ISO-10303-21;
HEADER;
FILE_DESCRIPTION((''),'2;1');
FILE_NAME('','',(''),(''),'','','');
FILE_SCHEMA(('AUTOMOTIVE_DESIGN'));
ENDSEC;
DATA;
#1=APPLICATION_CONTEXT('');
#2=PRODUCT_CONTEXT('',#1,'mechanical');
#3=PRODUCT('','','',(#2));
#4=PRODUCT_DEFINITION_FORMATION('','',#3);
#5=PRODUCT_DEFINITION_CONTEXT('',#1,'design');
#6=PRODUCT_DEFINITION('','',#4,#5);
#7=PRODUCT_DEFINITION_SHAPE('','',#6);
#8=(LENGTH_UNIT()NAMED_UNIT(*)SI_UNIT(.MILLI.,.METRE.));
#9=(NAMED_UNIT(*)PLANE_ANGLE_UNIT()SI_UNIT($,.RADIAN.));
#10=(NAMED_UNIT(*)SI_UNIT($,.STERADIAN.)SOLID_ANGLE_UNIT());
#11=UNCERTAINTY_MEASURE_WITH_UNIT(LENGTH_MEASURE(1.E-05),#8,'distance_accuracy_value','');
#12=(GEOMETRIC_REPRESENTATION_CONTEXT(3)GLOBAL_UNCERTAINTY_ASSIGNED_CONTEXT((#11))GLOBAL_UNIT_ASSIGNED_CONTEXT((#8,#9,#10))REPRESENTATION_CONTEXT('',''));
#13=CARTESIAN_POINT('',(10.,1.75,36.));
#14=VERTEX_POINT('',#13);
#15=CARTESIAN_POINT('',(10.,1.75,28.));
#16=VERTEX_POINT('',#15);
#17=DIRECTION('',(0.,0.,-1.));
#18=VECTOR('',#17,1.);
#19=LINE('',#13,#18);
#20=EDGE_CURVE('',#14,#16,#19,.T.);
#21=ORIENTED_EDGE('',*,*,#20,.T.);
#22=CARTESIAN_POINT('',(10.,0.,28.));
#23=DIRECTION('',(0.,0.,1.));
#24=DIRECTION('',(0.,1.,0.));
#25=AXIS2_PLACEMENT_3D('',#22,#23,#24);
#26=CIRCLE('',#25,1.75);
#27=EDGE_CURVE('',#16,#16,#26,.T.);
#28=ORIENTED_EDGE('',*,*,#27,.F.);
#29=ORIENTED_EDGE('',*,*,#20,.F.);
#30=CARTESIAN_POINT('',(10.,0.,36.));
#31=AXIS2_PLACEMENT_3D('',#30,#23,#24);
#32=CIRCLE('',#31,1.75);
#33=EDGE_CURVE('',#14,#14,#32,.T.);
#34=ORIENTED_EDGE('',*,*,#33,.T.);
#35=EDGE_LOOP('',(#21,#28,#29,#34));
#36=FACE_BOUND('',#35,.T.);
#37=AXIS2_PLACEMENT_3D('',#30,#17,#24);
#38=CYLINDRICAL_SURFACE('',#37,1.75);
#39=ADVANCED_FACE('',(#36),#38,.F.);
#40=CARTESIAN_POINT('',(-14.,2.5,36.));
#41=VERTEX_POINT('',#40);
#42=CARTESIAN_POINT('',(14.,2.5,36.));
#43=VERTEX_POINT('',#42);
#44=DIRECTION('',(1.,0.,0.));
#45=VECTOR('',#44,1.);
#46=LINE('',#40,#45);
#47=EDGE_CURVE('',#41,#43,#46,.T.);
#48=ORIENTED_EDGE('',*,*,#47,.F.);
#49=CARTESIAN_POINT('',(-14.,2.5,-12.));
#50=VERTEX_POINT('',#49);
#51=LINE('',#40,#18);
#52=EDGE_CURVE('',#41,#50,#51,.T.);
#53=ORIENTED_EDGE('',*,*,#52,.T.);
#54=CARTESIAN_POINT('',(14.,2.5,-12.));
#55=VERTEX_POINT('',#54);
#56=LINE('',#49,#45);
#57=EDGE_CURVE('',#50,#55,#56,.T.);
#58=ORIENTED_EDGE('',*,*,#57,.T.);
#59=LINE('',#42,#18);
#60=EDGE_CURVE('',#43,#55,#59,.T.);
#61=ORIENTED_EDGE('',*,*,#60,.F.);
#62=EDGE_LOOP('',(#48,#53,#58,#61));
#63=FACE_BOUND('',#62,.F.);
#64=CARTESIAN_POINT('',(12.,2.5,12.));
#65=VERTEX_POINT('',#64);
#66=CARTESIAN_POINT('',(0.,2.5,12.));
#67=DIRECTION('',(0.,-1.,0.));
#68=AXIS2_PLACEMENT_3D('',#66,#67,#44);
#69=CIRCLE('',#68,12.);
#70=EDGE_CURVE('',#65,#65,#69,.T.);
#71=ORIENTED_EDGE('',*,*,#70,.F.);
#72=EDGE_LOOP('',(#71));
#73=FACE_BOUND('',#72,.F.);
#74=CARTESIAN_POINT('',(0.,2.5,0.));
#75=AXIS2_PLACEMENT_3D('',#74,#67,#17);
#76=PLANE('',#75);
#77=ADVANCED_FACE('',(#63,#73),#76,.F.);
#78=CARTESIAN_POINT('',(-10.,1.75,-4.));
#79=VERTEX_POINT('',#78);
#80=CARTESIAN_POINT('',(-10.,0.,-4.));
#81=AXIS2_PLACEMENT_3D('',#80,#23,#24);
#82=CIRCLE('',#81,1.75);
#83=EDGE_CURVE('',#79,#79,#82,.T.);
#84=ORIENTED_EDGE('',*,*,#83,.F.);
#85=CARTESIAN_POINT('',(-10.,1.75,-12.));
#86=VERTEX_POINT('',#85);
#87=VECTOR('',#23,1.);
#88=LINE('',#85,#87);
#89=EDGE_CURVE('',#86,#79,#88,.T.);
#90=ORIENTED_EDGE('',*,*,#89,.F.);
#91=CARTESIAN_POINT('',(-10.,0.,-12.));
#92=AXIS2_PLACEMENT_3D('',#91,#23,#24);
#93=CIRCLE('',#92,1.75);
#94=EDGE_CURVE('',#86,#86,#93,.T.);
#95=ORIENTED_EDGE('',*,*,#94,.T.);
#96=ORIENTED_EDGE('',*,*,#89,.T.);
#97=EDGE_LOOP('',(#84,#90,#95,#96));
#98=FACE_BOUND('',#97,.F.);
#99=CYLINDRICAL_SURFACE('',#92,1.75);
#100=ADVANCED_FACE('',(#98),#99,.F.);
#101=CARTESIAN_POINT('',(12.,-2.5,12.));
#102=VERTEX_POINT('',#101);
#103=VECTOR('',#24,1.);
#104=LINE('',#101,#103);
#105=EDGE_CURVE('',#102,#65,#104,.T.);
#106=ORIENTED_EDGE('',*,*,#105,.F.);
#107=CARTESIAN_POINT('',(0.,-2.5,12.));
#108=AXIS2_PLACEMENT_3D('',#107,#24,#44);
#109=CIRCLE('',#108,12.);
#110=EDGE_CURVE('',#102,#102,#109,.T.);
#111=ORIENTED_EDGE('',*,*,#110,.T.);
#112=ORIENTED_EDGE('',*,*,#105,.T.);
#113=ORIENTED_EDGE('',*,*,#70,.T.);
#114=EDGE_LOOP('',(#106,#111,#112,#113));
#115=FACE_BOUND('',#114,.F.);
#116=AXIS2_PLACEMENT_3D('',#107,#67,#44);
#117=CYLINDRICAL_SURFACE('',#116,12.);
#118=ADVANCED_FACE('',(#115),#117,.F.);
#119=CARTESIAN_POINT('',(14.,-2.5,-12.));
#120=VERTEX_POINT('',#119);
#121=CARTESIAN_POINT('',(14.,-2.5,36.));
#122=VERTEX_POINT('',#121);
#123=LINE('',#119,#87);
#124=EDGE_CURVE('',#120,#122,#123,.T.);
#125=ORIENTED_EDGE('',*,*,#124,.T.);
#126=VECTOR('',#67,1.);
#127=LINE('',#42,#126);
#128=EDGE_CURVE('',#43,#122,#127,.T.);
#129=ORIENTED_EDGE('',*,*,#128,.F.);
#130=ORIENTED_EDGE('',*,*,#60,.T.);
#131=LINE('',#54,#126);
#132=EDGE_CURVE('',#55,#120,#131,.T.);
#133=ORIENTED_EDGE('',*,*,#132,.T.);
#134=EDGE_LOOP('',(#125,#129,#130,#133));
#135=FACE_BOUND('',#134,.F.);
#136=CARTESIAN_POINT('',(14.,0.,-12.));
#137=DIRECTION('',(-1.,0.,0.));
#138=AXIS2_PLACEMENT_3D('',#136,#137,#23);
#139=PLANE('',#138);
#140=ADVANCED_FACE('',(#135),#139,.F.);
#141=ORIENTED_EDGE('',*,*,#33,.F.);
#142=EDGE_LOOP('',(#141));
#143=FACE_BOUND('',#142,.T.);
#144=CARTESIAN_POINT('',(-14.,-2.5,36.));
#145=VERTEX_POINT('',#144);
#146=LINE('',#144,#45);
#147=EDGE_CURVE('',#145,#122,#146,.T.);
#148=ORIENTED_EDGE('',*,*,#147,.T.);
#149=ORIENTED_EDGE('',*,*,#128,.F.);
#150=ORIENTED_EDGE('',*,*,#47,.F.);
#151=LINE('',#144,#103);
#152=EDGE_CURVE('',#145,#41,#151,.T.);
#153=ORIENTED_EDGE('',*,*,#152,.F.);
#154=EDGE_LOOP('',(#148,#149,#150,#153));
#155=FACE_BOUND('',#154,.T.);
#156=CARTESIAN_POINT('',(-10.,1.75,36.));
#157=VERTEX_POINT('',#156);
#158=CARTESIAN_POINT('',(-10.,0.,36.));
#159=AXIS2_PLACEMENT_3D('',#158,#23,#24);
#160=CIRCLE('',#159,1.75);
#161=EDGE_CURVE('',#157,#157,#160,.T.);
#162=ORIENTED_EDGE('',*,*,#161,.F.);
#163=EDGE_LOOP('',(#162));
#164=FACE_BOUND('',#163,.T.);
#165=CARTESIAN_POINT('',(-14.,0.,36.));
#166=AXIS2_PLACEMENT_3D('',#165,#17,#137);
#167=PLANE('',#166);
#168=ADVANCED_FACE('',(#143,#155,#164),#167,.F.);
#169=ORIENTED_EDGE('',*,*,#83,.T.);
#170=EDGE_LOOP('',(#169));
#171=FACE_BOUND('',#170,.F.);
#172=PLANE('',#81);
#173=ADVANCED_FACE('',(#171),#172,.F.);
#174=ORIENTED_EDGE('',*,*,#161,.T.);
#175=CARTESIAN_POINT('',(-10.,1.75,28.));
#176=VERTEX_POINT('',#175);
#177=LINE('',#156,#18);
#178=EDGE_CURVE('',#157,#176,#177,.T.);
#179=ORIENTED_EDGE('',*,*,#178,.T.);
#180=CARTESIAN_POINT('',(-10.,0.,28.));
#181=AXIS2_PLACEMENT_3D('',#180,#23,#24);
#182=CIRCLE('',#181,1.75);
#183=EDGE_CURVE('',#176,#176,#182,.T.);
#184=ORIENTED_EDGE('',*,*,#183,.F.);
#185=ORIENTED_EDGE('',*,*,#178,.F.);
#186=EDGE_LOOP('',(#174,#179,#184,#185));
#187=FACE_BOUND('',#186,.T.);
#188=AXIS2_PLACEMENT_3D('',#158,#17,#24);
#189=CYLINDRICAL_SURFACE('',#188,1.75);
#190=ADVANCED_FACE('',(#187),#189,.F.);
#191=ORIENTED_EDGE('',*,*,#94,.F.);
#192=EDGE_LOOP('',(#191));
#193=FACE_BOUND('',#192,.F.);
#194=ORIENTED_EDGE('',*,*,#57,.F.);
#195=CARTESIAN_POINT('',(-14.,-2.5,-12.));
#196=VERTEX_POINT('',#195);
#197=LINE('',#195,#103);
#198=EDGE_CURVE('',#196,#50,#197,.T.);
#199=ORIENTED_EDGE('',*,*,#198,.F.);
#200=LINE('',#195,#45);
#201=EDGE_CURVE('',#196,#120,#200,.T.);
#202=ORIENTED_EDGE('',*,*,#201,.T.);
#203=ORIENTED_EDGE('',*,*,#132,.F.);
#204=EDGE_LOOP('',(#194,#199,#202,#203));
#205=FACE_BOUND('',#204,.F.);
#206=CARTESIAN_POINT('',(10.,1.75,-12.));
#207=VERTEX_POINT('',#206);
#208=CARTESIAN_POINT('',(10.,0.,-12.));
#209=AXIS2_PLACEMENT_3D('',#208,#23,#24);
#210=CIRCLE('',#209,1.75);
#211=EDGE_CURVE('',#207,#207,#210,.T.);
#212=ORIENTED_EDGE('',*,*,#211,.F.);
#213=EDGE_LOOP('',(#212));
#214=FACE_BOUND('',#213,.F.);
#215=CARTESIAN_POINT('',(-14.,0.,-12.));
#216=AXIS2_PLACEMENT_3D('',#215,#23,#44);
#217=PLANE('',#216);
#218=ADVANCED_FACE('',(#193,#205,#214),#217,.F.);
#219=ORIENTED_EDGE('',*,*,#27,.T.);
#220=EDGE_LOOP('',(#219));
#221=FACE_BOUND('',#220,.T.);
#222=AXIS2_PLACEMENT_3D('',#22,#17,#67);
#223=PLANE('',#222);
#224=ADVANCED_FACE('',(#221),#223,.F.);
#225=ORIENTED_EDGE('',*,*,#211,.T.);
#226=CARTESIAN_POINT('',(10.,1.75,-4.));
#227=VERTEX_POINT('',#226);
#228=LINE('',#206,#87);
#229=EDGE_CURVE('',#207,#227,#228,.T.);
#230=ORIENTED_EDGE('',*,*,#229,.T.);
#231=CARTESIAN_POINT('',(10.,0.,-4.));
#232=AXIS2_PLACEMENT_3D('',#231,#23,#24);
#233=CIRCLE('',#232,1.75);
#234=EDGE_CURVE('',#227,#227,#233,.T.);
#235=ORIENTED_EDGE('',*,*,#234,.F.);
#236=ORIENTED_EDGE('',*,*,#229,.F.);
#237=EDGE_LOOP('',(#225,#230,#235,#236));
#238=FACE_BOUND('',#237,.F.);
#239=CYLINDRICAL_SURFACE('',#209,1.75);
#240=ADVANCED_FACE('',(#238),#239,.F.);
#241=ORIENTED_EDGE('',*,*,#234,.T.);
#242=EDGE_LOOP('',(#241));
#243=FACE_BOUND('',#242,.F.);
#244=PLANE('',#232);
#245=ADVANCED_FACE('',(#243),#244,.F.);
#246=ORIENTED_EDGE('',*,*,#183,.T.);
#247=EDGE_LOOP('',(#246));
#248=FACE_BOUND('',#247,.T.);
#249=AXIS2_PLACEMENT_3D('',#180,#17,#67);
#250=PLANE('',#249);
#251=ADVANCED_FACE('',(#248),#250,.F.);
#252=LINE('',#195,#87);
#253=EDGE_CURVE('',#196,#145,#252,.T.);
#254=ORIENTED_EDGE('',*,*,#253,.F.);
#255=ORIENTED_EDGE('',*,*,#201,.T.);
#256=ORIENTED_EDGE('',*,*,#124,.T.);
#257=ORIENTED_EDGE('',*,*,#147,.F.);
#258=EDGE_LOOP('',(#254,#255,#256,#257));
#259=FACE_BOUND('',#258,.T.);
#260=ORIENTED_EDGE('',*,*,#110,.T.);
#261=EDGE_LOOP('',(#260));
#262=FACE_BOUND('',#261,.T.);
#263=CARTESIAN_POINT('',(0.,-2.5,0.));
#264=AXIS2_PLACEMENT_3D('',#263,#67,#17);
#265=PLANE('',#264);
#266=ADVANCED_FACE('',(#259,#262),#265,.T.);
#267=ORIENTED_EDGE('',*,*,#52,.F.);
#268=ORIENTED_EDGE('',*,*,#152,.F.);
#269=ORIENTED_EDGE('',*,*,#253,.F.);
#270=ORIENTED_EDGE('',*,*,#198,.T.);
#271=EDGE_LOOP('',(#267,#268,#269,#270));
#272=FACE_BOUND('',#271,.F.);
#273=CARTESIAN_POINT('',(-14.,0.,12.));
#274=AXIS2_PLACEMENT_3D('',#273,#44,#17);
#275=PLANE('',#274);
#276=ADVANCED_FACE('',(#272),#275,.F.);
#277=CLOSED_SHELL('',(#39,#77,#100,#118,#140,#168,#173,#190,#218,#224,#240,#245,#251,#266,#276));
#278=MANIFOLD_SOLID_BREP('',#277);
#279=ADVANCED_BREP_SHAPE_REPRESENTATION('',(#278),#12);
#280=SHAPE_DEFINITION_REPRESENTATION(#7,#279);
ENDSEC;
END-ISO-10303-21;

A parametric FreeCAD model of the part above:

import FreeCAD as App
import Part
import Sketcher

V = App.Vector
Q = App.Units.Quantity

doc = App.newDocument("Part")
body = doc.addObject("PartDesign::Body", "Body")

# Sketch on XZ plane
sketch1 = body.newObject("Sketcher::SketchObject", "Sketch")
sketch1.AttachmentSupport = (doc.getObject("XZ_Plane"), [""])
sketch1.MapMode = "FlatFace"
sketch1.addGeometry([
    Part.LineSegment(V(-14, 12, 0), V(-14, -12, 0)),
    Part.LineSegment(V(-14, -12, 0), V(14, -12, 0)),
    Part.LineSegment(V(14, -12, 0), V(14, 12, 0)),
    Part.LineSegment(V(14, 12, 0), V(-14, 12, 0)),
], False)
sketch1.addConstraint([
    Sketcher.Constraint("Coincident", 0, 2, 1, 1),
    Sketcher.Constraint("Coincident", 1, 2, 2, 1),
    Sketcher.Constraint("Coincident", 2, 2, 3, 1),
    Sketcher.Constraint("Coincident", 3, 2, 0, 1),
    Sketcher.Constraint("Vertical", 0),
    Sketcher.Constraint("Horizontal", 1),
    Sketcher.Constraint("Vertical", 2),
    Sketcher.Constraint("Horizontal", 3),
    Sketcher.Constraint("Symmetric", 0, 2, 2, 2, -1, 1),
    Sketcher.Constraint("DistanceX", 0, 2, -1, 1, Q("14 mm")),
    Sketcher.Constraint("DistanceY", 0, 2, 0, 1, Q("24 mm")),
])
pad1 = body.newObject("PartDesign::Pad", "Pad")
pad1.Profile = sketch1
pad1.Length = 5
pad1.Midplane = True

# Sketch on XZ plane
sketch2 = body.newObject("Sketcher::SketchObject", "Sketch001")
sketch2.AttachmentSupport = (doc.getObject("XZ_Plane"), [""])
sketch2.MapMode = "FlatFace"
sketch2.AttachmentOffset = App.Placement(V(0, 0, 2.5), App.Rotation())
sketch2.addGeometry(Part.Circle(V(0, 12, 0), V(0, 0, 1), 12), False)
sketch2.addConstraint([
    Sketcher.Constraint("PointOnObject", 0, 3, -2),
    Sketcher.Constraint("Diameter", 0, Q("24 mm")),
    Sketcher.Constraint("DistanceY", -1, 1, 0, 3, Q("12 mm")),
])
pocket1 = body.newObject("PartDesign::Pocket", "Pocket")
pocket1.Profile = sketch2
pocket1.Length = 221

# Sketch on XY plane
sketch3 = body.newObject("Sketcher::SketchObject", "Sketch002")
sketch3.AttachmentSupport = (doc.getObject("XY_Plane"), [""])
sketch3.MapMode = "FlatFace"
sketch3.AttachmentOffset = App.Placement(V(0, 0, -12), App.Rotation())
sketch3.addGeometry(Part.Circle(V(-10, 0, 0), V(0, 0, 1), 1.8), False)
sketch3.addConstraint([
    Sketcher.Constraint("PointOnObject", 0, 3, -1),
    Sketcher.Constraint("Diameter", 0, Q("3.5 mm")),
    Sketcher.Constraint("DistanceX", 0, 3, -1, 1, Q("10 mm")),
])
doc.recompute()
hole = body.newObject("PartDesign::Hole", "Hole")
hole.Profile = sketch3
hole.ThreadType = "None"
hole.Diameter = 3.5
hole.DepthType = "Dimension"
hole.Depth = 8
hole.DrillPoint = "Flat"
hole.Reversed = True

# Sketch on XY plane
sketch4 = body.newObject("Sketcher::SketchObject", "Sketch003")
sketch4.AttachmentSupport = (doc.getObject("XY_Plane"), [""])
sketch4.MapMode = "FlatFace"
sketch4.AttachmentOffset = App.Placement(V(0, 0, -12), App.Rotation())
sketch4.addGeometry(Part.Circle(V(10, 0, 0), V(0, 0, 1), 1.8), False)
sketch4.addConstraint([
    Sketcher.Constraint("PointOnObject", 0, 3, -1),
    Sketcher.Constraint("Diameter", 0, Q("3.5 mm")),
    Sketcher.Constraint("DistanceX", -1, 1, 0, 3, Q("10 mm")),
])
doc.recompute()
hole2 = body.newObject("PartDesign::Hole", "Hole001")
hole2.Profile = sketch4
hole2.ThreadType = "None"
hole2.Diameter = 3.5
hole2.DepthType = "Dimension"
hole2.Depth = 8
hole2.DrillPoint = "Flat"
hole2.Reversed = True
doc.recompute()

datumplane = body.newObject("PartDesign::Plane", "DatumPlane")
datumplane.AttachmentSupport = (doc.getObject("XY_Plane"), [""])
datumplane.MapMode = "FlatFace"
datumplane.AttachmentOffset = App.Placement(V(0, 0, 12), App.Rotation())
mirrored = body.newObject("PartDesign::Mirrored", "Mirrored")
mirrored.Originals = [pad1, pocket1, hole, hole2]
mirrored.MirrorPlane = (datumplane, [""])
body.Tip = mirrored

doc.recompute()
